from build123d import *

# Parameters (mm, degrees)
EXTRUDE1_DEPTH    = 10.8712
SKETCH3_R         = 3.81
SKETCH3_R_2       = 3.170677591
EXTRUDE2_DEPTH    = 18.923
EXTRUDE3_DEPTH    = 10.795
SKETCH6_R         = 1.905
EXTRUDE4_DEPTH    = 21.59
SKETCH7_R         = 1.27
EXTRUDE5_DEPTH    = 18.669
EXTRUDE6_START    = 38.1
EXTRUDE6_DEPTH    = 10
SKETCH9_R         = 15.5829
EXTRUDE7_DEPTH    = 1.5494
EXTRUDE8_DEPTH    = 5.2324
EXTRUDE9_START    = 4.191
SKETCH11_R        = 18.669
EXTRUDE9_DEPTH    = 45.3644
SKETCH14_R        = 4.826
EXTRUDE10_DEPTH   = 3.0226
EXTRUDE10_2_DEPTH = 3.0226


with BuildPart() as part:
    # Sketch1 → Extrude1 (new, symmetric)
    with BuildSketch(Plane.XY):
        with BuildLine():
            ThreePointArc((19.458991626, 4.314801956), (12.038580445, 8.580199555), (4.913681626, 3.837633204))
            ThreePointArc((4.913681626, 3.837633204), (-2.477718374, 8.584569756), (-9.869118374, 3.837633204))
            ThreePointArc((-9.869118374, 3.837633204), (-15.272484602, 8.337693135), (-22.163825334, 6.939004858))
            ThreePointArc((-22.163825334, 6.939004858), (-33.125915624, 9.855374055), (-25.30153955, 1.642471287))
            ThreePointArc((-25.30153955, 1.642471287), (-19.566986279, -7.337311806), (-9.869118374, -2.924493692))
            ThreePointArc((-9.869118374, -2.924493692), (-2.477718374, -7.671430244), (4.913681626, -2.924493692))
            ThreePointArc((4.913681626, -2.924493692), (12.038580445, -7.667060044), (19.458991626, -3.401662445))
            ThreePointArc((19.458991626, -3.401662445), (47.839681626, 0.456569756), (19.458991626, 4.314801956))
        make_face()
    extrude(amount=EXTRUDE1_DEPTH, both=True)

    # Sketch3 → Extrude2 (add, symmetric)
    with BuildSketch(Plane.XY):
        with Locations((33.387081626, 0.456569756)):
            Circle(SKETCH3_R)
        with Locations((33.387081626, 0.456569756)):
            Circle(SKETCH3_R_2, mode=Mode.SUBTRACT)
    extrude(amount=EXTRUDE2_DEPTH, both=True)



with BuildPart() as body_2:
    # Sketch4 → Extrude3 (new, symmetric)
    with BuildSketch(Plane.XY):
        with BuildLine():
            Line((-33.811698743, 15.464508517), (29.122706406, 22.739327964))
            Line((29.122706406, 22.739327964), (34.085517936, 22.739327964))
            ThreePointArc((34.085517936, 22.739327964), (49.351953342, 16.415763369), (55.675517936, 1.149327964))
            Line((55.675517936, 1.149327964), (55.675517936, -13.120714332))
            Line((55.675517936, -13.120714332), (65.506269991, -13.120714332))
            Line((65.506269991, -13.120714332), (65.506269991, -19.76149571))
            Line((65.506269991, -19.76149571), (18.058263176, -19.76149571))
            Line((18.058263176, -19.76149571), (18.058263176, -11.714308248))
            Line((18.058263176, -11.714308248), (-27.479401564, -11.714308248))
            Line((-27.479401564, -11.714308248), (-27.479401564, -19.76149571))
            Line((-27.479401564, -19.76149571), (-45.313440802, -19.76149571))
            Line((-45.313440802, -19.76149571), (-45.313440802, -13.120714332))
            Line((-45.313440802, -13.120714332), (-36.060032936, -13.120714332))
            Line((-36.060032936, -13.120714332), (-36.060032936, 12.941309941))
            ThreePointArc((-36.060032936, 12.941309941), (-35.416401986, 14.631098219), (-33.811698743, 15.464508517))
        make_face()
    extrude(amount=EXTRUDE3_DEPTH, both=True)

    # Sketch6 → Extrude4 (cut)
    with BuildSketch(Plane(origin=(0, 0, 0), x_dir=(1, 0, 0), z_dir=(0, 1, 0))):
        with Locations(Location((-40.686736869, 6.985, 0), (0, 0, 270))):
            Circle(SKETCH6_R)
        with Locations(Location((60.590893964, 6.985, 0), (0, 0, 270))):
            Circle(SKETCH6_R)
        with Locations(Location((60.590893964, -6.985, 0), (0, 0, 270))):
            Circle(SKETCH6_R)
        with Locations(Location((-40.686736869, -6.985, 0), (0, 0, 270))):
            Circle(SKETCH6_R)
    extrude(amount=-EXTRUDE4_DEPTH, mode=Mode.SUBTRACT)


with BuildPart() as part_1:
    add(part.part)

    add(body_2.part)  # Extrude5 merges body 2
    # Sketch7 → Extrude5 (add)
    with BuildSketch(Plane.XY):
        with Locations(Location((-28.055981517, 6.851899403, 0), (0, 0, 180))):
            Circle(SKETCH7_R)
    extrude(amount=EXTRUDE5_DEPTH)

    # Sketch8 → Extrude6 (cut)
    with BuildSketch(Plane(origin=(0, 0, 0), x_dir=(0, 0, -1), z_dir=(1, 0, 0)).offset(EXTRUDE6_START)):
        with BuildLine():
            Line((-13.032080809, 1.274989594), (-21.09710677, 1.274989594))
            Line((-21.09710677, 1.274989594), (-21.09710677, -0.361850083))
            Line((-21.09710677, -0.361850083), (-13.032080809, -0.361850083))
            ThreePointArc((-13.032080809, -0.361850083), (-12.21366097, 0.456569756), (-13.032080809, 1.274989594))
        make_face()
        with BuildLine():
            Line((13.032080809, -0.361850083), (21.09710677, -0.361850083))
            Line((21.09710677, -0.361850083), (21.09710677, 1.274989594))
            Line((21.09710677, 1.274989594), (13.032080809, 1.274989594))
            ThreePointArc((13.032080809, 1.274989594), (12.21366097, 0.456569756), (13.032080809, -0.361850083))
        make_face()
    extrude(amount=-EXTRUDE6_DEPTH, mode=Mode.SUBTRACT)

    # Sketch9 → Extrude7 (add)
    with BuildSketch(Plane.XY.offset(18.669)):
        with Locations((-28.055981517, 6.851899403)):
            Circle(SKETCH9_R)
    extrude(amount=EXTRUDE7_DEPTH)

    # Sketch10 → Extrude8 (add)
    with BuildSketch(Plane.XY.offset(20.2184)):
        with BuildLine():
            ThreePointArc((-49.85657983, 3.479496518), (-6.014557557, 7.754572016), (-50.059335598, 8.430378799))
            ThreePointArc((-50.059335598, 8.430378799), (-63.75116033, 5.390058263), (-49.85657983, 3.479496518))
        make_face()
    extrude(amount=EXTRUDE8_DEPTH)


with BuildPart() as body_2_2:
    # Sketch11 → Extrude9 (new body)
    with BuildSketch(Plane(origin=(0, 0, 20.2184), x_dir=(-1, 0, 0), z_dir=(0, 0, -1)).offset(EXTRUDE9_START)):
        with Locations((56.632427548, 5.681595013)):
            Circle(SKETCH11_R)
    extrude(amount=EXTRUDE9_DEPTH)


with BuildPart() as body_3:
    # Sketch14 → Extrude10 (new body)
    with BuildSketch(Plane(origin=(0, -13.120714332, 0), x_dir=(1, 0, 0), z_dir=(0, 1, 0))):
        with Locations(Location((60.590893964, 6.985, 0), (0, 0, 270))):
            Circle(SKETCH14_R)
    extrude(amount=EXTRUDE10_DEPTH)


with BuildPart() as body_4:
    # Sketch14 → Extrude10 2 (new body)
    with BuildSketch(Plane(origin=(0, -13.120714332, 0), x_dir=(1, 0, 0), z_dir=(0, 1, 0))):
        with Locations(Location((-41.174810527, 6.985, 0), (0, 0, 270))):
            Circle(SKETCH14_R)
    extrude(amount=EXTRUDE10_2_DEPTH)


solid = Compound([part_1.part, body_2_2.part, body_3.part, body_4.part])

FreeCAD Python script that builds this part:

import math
import FreeCAD as App
import Part
import Sketcher

V = App.Vector
Q = App.Units.Quantity

doc = App.newDocument("Part")
params = doc.addObject("Spreadsheet::Sheet", "Params")
for row, (alias, value) in enumerate([
    ("sketch1_radius", "0.32 in"),
    ("sketch1_radius2", "0.232 in"),
    ("sketch1_radius3", "0.569 in"),
    ("pad1_length", "0.856 in"),
    ("sketch2_diameter", "0.3 in"),
    ("pad2_length", "1.49 in"),
    ("sketch3_radius", "0.1 in"),
    ("sketch3_radius2", "0.85 in"),
    ("pad3_length", "0.85 in"),
    ("sketch4_diameter", "0.15 in"),
    ("pocket1_length", "0.85 in"),
    ("sketch5_diameter", "0.1 in"),
    ("pad4_length", "0.735 in"),
    ("pocket2_length", "10 mm"),
    ("sketch7_diameter", "1.227 in"),
    ("pad5_length", "0.061 in"),
    ("pad6_length", "0.206 in"),
    ("sketch9_diameter", "1.47 in"),
    ("pad7_length", "1.786 in"),
    ("sketch10_diameter", "0.38 in"),
    ("pad8_length", "0.119 in"),
    ("sketch11_diameter", "0.38 in"),
    ("pad9_length", "0.119 in"),
], start=1):
    params.set(f"A{row}", alias)
    params.set(f"B{row}", "=" + value)
    params.setAlias(f"B{row}", alias)

body = doc.addObject("PartDesign::Body", "Body")

# Sketch on XY plane
sketch1 = doc.addObject("Sketcher::SketchObject", "Sketch")
body.addObject(sketch1)
sketch1.AttachmentSupport = (doc.XY_Plane, [""])
sketch1.MapMode = "FlatFace"
sketch1.addGeometry([
    Part.ArcOfCircle(Part.Circle(V(12, 0, 0), V(0, 0, 1), 8), math.radians(28), math.radians(155)),  # 0
    Part.ArcOfCircle(Part.Circle(V(-2, 0, 0), V(0, 0, 1), 8), math.radians(25), math.radians(155)),  # 1
    Part.ArcOfCircle(Part.Circle(V(-17, 0, 0), V(0, 0, 1), 8), math.radians(25), math.radians(127)),  # 2
    Part.ArcOfCircle(Part.Circle(V(-28, 7, 0), V(0, 0, 1), 6), math.radians(1), math.radians(298)),  # 3
    Part.ArcOfCircle(Part.Circle(V(-17, 0, 0), V(0, 0, 1), 8), math.radians(172), math.radians(335)),  # 4
    Part.ArcOfCircle(Part.Circle(V(-2, 0, 0), V(0, 0, 1), 8), math.radians(-155), math.radians(-25)),  # 5
    Part.ArcOfCircle(Part.Circle(V(12, 0, 0), V(0, 0, 1), 8), math.radians(-155), math.radians(-28)),  # 6
    Part.ArcOfCircle(Part.Circle(V(33, 0, 0), V(0, 0, 1), 14), math.radians(-165), math.radians(165)),  # 7
], False)
sketch1.addConstraint([
    Sketcher.Constraint("Coincident", 0, 2, 1, 1),
    Sketcher.Constraint("Coincident", 1, 2, 2, 1),
    Sketcher.Constraint("Coincident", 2, 2, 3, 1),
    Sketcher.Constraint("Coincident", 3, 2, 4, 1),
    Sketcher.Constraint("Coincident", 4, 2, 5, 1),
    Sketcher.Constraint("Coincident", 5, 2, 6, 1),
    Sketcher.Constraint("Coincident", 6, 2, 7, 1),
    Sketcher.Constraint("Coincident", 7, 2, 0, 1),
    Sketcher.Constraint("Coincident", 4, 3, 2, 3),
    Sketcher.Constraint("Coincident", 5, 3, 1, 3),
    Sketcher.Constraint("Coincident", 6, 3, 0, 3),
    Sketcher.Constraint("Equal", 0, 1),
    Sketcher.Constraint("Equal", 1, 2),
    Sketcher.Constraint("Equal", 2, 4),
    Sketcher.Constraint("Equal", 4, 5),
    Sketcher.Constraint("Equal", 5, 6),
    Sketcher.Constraint("Horizontal", 0, 3, 1, 3),
    Sketcher.Constraint("Horizontal", 1, 3, 2, 3),
    Sketcher.Constraint("Horizontal", 6, 3, 7, 3),
    Sketcher.Constraint("Horizontal", 0, 2, 1, 2),
    Sketcher.Constraint("Radius", 0, Q("0.32 in")),
    Sketcher.Constraint("Radius", 3, Q("0.232 in")),
    Sketcher.Constraint("Radius", 7, Q("0.569 in")),
    Sketcher.Constraint("DistanceX", 0, 3, 7, 3, Q("0.83 in")),
    Sketcher.Constraint("DistanceX", 1, 3, 0, 3, Q("0.582 in")),
    Sketcher.Constraint("DistanceY", -1, 1, 3, 3, Q("6.851899 mm")),
    Sketcher.Constraint("DistanceY", -1, 1, 7, 2, Q("4.314802 mm")),
    Sketcher.Constraint("DistanceY", 4, 3, 3, 2, Q("1.185902 mm")),
    Sketcher.Constraint("DistanceX", -1, 1, 0, 3, Q("12.305082 mm")),
])
sketch1.setExpression("Constraints[20]", "Params.sketch1_radius")
sketch1.setExpression("Constraints[21]", "Params.sketch1_radius2")
sketch1.setExpression("Constraints[22]", "Params.sketch1_radius3")
pad1 = doc.addObject("PartDesign::Pad", "Pad")
body.addObject(pad1)
pad1.Profile = sketch1
pad1.setExpression("Length", "Params.pad1_length")
pad1.Midplane = True

# Sketch on XY plane
sketch2 = doc.addObject("Sketcher::SketchObject", "Sketch001")
body.addObject(sketch2)
sketch2.AttachmentSupport = (doc.XY_Plane, [""])
sketch2.MapMode = "FlatFace"
sketch2.addGeometry([
    Part.Circle(V(33.4, 0.5, 0), V(0, 0, 1), 3.8),
    Part.Circle(V(33.4, 0.5, 0), V(0, 0, 1), 3.2),
], False)
sketch2.addConstraint([
    Sketcher.Constraint("Coincident", 1, 3, 0, 3),
    Sketcher.Constraint("Diameter", 0, Q("0.3 in")),
    Sketcher.Constraint("Diameter", 1, Q("6.341355 mm")),
    Sketcher.Constraint("DistanceX", -1, 1, 0, 3, Q("33.387082 mm")),
    Sketcher.Constraint("DistanceY", -1, 1, 0, 3, Q("0.45657 mm")),
])
sketch2.setExpression("Constraints[1]", "Params.sketch2_diameter")
pad2 = doc.addObject("PartDesign::Pad", "Pad001")
body.addObject(pad2)
pad2.Profile = sketch2
pad2.setExpression("Length", "Params.pad2_length")
pad2.Midplane = True
body2 = doc.addObject("PartDesign::Body", "Body001")

# Sketch on XY plane
sketch3 = doc.addObject("Sketcher::SketchObject", "Sketch002")
body2.addObject(sketch3)
sketch3.AttachmentSupport = (doc.getObject("XY_Plane001"), [""])
sketch3.MapMode = "FlatFace"
sketch3.addGeometry([
    Part.LineSegment(V(29.122706, 22.739328, 0), V(-33.811699, 15.464509, 0)),  # 0
    Part.ArcOfCircle(Part.Circle(V(-33.520033, 12.94131, 0), V(0, 0, 1), 2.54), math.radians(96.593765), math.radians(180)),  # 1
    Part.LineSegment(V(-36.060033, 12.94131, 0), V(-36.060033, -13.120714, 0)),  # 2
    Part.LineSegment(V(-36.060033, -13.120714, 0), V(-45.313441, -13.120714, 0)),  # 3
    Part.LineSegment(V(-45.313441, -13.120714, 0), V(-45.313441, -19.761496, 0)),  # 4
    Part.LineSegment(V(-45.313441, -19.761496, 0), V(-27.479402, -19.761496, 0)),  # 5
    Part.LineSegment(V(-27.479402, -19.761496, 0), V(-27.479402, -11.714308, 0)),  # 6
    Part.LineSegment(V(-27.479402, -11.714308, 0), V(18.058263, -11.714308, 0)),  # 7
    Part.LineSegment(V(18.058263, -11.714308, 0), V(18.058263, -19.761496, 0)),  # 8
    Part.LineSegment(V(18.058263, -19.761496, 0), V(65.50627, -19.761496, 0)),  # 9
    Part.LineSegment(V(65.50627, -19.761496, 0), V(65.50627, -13.120714, 0)),  # 10
    Part.LineSegment(V(65.50627, -13.120714, 0), V(55.675518, -13.120714, 0)),  # 11
    Part.LineSegment(V(55.675518, -13.120714, 0), V(55.675518, 1.149328, 0)),  # 12
    Part.ArcOfCircle(Part.Circle(V(34.085518, 1.149328, 0), V(0, 0, 1), 21.59), math.radians(0), math.radians(90)),  # 13
    Part.LineSegment(V(34.085518, 22.739328, 0), V(29.122706, 22.739328, 0)),  # 14
], False)
sketch3.addConstraint([
    Sketcher.Constraint("Coincident", 0, 2, 1, 1),
    Sketcher.Constraint("Coincident", 1, 2, 2, 1),
    Sketcher.Constraint("Coincident", 2, 2, 3, 1),
    Sketcher.Constraint("Coincident", 3, 2, 4, 1),
    Sketcher.Constraint("Coincident", 4, 2, 5, 1),
    Sketcher.Constraint("Coincident", 5, 2, 6, 1),
    Sketcher.Constraint("Coincident", 6, 2, 7, 1),
    Sketcher.Constraint("Coincident", 7, 2, 8, 1),
    Sketcher.Constraint("Coincident", 8, 2, 9, 1),
    Sketcher.Constraint("Coincident", 9, 2, 10, 1),
    Sketcher.Constraint("Coincident", 10, 2, 11, 1),
    Sketcher.Constraint("Coincident", 11, 2, 12, 1),
    Sketcher.Constraint("Coincident", 12, 2, 13, 1),
    Sketcher.Constraint("Coincident", 13, 2, 14, 1),
    Sketcher.Constraint("Coincident", 14, 2, 0, 1),
    Sketcher.Constraint("Vertical", 2),
    Sketcher.Constraint("Horizontal", 3),
    Sketcher.Constraint("Vertical", 4),
    Sketcher.Constraint("Horizontal", 5),
    Sketcher.Constraint("Vertical", 6),
    Sketcher.Constraint("Horizontal", 7),
    Sketcher.Constraint("Vertical", 8),
    Sketcher.Constraint("Horizontal", 9),
    Sketcher.Constraint("Vertical", 10),
    Sketcher.Constraint("Horizontal", 11),
    Sketcher.Constraint("Vertical", 12),
    Sketcher.Constraint("Horizontal", 14),
    Sketcher.Constraint("Radius", 1, Q("0.1 in")),
    Sketcher.Constraint("Radius", 13, Q("0.85 in")),
    Sketcher.Constraint("DistanceX", 13, 2, 12, 2, Q("0.85 in")),
    Sketcher.Constraint("DistanceY", 12, 2, 13, 2, Q("0.85 in")),
    Sketcher.Constraint("DistanceX", 5, 1, 5, 2, Q("17.834039 mm")),
    Sketcher.Constraint("DistanceX", 14, 2, 14, 1, Q("4.962812 mm")),
    Sketcher.Constraint("DistanceY", 4, 2, 4, 1, Q("6.640781 mm")),
    Sketcher.Constraint("DistanceY", 10, 1, 10, 2, Q("6.640781 mm")),
    Sketcher.Constraint("DistanceX", 0, 2, -1, 1, Q("33.811699 mm")),
    Sketcher.Constraint("DistanceX", 5, 2, -1, 1, Q("27.479402 mm")),
    Sketcher.Constraint("DistanceY", 1, 3, 0, 2, Q("2.523199 mm")),
    Sketcher.Constraint("DistanceY", 1, 2, 0, 2, Q("2.523199 mm")),
    Sketcher.Constraint("Distance", 0, Q("63.353471 mm")),
    Sketcher.Constraint("DistanceX", 7, 1, 7, 2, Q("45.537665 mm")),
    Sketcher.Constraint("DistanceX", 9, 1, 9, 2, Q("47.448007 mm")),
    Sketcher.Constraint("DistanceX", 11, 2, 11, 1, Q("9.830752 mm")),
    Sketcher.Constraint("DistanceY", 2, 2, 2, 1, Q("26.062024 mm")),
    Sketcher.Constraint("DistanceY", 6, 1, 6, 2, Q("8.047187 mm")),
    Sketcher.Constraint("DistanceY", 8, 2, 8, 1, Q("8.047187 mm")),
    Sketcher.Constraint("DistanceY", -1, 1, 1, 3, Q("12.94131 mm")),
])
sketch3.setExpression("Constraints[27]", "Params.sketch3_radius")
sketch3.setExpression("Constraints[28]", "Params.sketch3_radius2")
pad3 = doc.addObject("PartDesign::Pad", "Pad002")
body2.addObject(pad3)
pad3.Profile = sketch3
pad3.setExpression("Length", "Params.pad3_length")
pad3.Midplane = True

# Sketch on XZ plane
sketch4 = doc.addObject("Sketcher::SketchObject", "Sketch003")
body2.addObject(sketch4)
sketch4.AttachmentSupport = (doc.getObject("XZ_Plane001"), [""])
sketch4.MapMode = "FlatFace"
sketch4.addGeometry([
    Part.Circle(V(-40.7, -7, 0), V(0, 0, 1), 1.9),
    Part.Circle(V(60.6, -7, 0), V(0, 0, 1), 1.9),
    Part.Circle(V(60.6, 7, 0), V(0, 0, 1), 1.9),
    Part.Circle(V(-40.7, 7, 0), V(0, 0, 1), 1.9),
], False)
sketch4.addConstraint([
    Sketcher.Constraint("Equal", 0, 1),
    Sketcher.Constraint("Equal", 1, 2),
    Sketcher.Constraint("Equal", 2, 3),
    Sketcher.Constraint("Symmetric", 1, 3, 2, 3, -1),
    Sketcher.Constraint("Symmetric", 0, 3, 3, 3, -1),
    Sketcher.Constraint("Horizontal", 0, 3, 1, 3),
    Sketcher.Constraint("Diameter", 0, Q("0.15 in")),
    Sketcher.Constraint("DistanceY", 1, 3, 2, 3, Q("0.55 in")),
    Sketcher.Constraint("DistanceX", 0, 3, 1, 3, Q("101.277631 mm")),
    Sketcher.Constraint("DistanceX", 0, 3, -1, 1, Q("40.686737 mm")),
])
sketch4.setExpression("Constraints[6]", "Params.sketch4_diameter")
pocket1 = doc.addObject("PartDesign::Pocket", "Pocket")
body2.addObject(pocket1)
pocket1.Profile = sketch4
pocket1.setExpression("Length", "Params.pocket1_length")
pocket1.Reversed = True
doc.recompute()

boolean = doc.addObject("PartDesign::Boolean", "Boolean")
body.addObject(boolean)
boolean.Type = "Fuse"
boolean.addObjects([body2])

# Sketch on XY plane
sketch5 = doc.addObject("Sketcher::SketchObject", "Sketch004")
body.addObject(sketch5)
sketch5.AttachmentSupport = (doc.XY_Plane, [""])
sketch5.MapMode = "FlatFace"
sketch5.addGeometry(Part.Circle(V(-28.1, 6.9, 0), V(0, 0, 1), 1.3), False)
sketch5.addConstraint([
    Sketcher.Constraint("Diameter", 0, Q("0.1 in")),
    Sketcher.Constraint("DistanceY", -1, 1, 0, 3, Q("6.851899 mm")),
    Sketcher.Constraint("DistanceX", 0, 3, -1, 1, Q("28.055982 mm")),
])
sketch5.setExpression("Constraints[0]", "Params.sketch5_diameter")
pad4 = doc.addObject("PartDesign::Pad", "Pad003")
body.addObject(pad4)
pad4.Profile = sketch5
pad4.setExpression("Length", "Params.pad4_length")

# Sketch on YZ plane
sketch6 = doc.addObject("Sketcher::SketchObject", "Sketch005")
body.addObject(sketch6)
sketch6.AttachmentSupport = (doc.YZ_Plane, [""])
sketch6.MapMode = "FlatFace"
sketch6.AttachmentOffset = App.Placement(V(0, 0, 1.5 * 25.4), App.Rotation())
sketch6.addGeometry([
    Part.LineSegment(V(1.3, 13, 0), V(1.3, 21.1, 0)),  # 0
    Part.LineSegment(V(1.3, 21.1, 0), V(-0.4, 21.1, 0)),  # 1
    Part.LineSegment(V(-0.4, 21.1, 0), V(-0.4, 13, 0)),  # 2
    Part.ArcOfCircle(Part.Circle(V(0.5, 13, 0), V(0, 0, 1), 0.8), math.radians(180), math.radians(360)),  # 3
    Part.LineSegment(V(-0.4, -13, 0), V(-0.4, -21.1, 0)),  # 4
    Part.LineSegment(V(-0.4, -21.1, 0), V(1.3, -21.1, 0)),  # 5
    Part.LineSegment(V(1.3, -21.1, 0), V(1.3, -13, 0)),  # 6
    Part.ArcOfCircle(Part.Circle(V(0.5, -13, 0), V(0, 0, 1), 0.8), math.radians(0), math.radians(180)),  # 7
], False)
sketch6.addConstraint([
    Sketcher.Constraint("Coincident", 0, 2, 1, 1),
    Sketcher.Constraint("Coincident", 1, 2, 2, 1),
    Sketcher.Constraint("Tangent", 2, 2, 3, 1),
    Sketcher.Constraint("Tangent", 3, 2, 0, 1),
    Sketcher.Constraint("Coincident", 4, 2, 5, 1),
    Sketcher.Constraint("Coincident", 5, 2, 6, 1),
    Sketcher.Constraint("Tangent", 6, 2, 7, 1),
    Sketcher.Constraint("Tangent", 7, 2, 4, 1),
    Sketcher.Constraint("Vertical", 0),
    Sketcher.Constraint("Horizontal", 1),
    Sketcher.Constraint("Vertical", 2),
    Sketcher.Constraint("Vertical", 4),
    Sketcher.Constraint("Horizontal", 5),
    Sketcher.Constraint("Vertical", 6),
    Sketcher.Constraint("Equal", 3, 7),
    Sketcher.Constraint("Symmetric", 3, 3, 7, 3, -1),
    Sketcher.Constraint("Equal", 2, 4),
    Sketcher.Constraint("Radius", 3, Q("0.81842 mm")),
    Sketcher.Constraint("DistanceY", 0, 1, 0, 2, Q("8.065026 mm")),
    Sketcher.Constraint("DistanceX", -1, 1, 3, 3, Q("0.45657 mm")),
    Sketcher.Constraint("DistanceY", -1, 1, 3, 3, Q("13.032081 mm")),
])
pocket2 = doc.addObject("PartDesign::Pocket", "Pocket001")
body.addObject(pocket2)
pocket2.Profile = sketch6
pocket2.setExpression("Length", "Params.pocket2_length")

# Sketch on XY plane
sketch7 = doc.addObject("Sketcher::SketchObject", "Sketch006")
body.addObject(sketch7)
sketch7.AttachmentSupport = (doc.XY_Plane, [""])
sketch7.MapMode = "FlatFace"
sketch7.AttachmentOffset = App.Placement(V(0, 0, 0.735 * 25.4), App.Rotation())
sketch7.addGeometry(Part.Circle(V(-28, 7, 0), V(0, 0, 1), 16), False)
sketch7.addConstraint([
    Sketcher.Constraint("Diameter", 0, Q("1.227 in")),
    Sketcher.Constraint("DistanceY", -1, 1, 0, 3, Q("6.851899 mm")),
    Sketcher.Constraint("DistanceX", 0, 3, -1, 1, Q("28.055982 mm")),
])
sketch7.setExpression("Constraints[0]", "Params.sketch7_diameter")
pad5 = doc.addObject("PartDesign::Pad", "Pad004")
body.addObject(pad5)
pad5.Profile = sketch7
pad5.setExpression("Length", "Params.pad5_length")

# Sketch on XY plane
sketch8 = doc.addObject("Sketcher::SketchObject", "Sketch007")
body.addObject(sketch8)
sketch8.AttachmentSupport = (doc.XY_Plane, [""])
sketch8.MapMode = "FlatFace"
sketch8.AttachmentOffset = App.Placement(V(0, 0, 0.796 * 25.4), App.Rotation())
sketch8.addGeometry([
    Part.ArcOfCircle(Part.Circle(V(-28.1, 6.9, 0), V(0, 0, 1), 22.1), math.radians(-171), math.radians(176)),
    Part.ArcOfCircle(Part.Circle(V(-56.6, 5.7, 0), V(0, 0, 1), 7.1), math.radians(23), math.radians(342)),
], False)
sketch8.addConstraint([
    Sketcher.Constraint("Coincident", 0, 1, 1, 2),
    Sketcher.Constraint("Coincident", 1, 1, 0, 2),
    Sketcher.Constraint("Radius", 0, Q("0.8685 in")),
    Sketcher.Constraint("Radius", 1, Q("0.2805 in")),
    Sketcher.Constraint("DistanceY", -1, 1, 0, 3, Q("6.851899 mm")),
    Sketcher.Constraint("DistanceY", 0, 1, 1, 3, Q("2.202098 mm")),
    Sketcher.Constraint("DistanceX", 0, 1, 0, 3, Q("21.800598 mm")),
    Sketcher.Constraint("DistanceX", 0, 3, -1, 1, Q("28.055982 mm")),
])
pad6 = doc.addObject("PartDesign::Pad", "Pad005")
body.addObject(pad6)
pad6.Profile = sketch8
pad6.setExpression("Length", "Params.pad6_length")
body3 = doc.addObject("PartDesign::Body", "Body002")

# Sketch on XY plane
sketch9 = doc.addObject("Sketcher::SketchObject", "Sketch008")
body3.addObject(sketch9)
sketch9.AttachmentSupport = (doc.getObject("XY_Plane002"), [""])
sketch9.MapMode = "FlatFace"
sketch9.AttachmentOffset = App.Placement(V(0, 0, 0.631 * 25.4), App.Rotation())
sketch9.addGeometry(Part.Circle(V(-57, 6, 0), V(0, 0, 1), 19), False)
sketch9.addConstraint([
    Sketcher.Constraint("Diameter", 0, Q("1.47 in")),
    Sketcher.Constraint("DistanceX", 0, 3, -1, 1, Q("56.632428 mm")),
    Sketcher.Constraint("DistanceY", -1, 1, 0, 3, Q("5.681595 mm")),
])
sketch9.setExpression("Constraints[0]", "Params.sketch9_diameter")
pad7 = doc.addObject("PartDesign::Pad", "Pad006")
body3.addObject(pad7)
pad7.Profile = sketch9
pad7.setExpression("Length", "Params.pad7_length")
pad7.Reversed = True
body4 = doc.addObject("PartDesign::Body", "Body003")

# Sketch on XZ plane
sketch10 = doc.addObject("Sketcher::SketchObject", "Sketch009")
body4.addObject(sketch10)
sketch10.AttachmentSupport = (doc.getObject("XZ_Plane003"), [""])
sketch10.MapMode = "FlatFace"
sketch10.AttachmentOffset = App.Placement(V(0, 0, 13.120714), App.Rotation())
sketch10.addGeometry(Part.Circle(V(60.6, -7, 0), V(0, 0, 1), 4.8), False)
sketch10.addConstraint([
    Sketcher.Constraint("Diameter", 0, Q("0.38 in")),
    Sketcher.Constraint("DistanceY", 0, 3, -1, 1, Q("0.275 in")),
    Sketcher.Constraint("DistanceX", -1, 1, 0, 3, Q("60.590894 mm")),
])
sketch10.setExpression("Constraints[0]", "Params.sketch10_diameter")
pad8 = doc.addObject("PartDesign::Pad", "Pad007")
body4.addObject(pad8)
pad8.Profile = sketch10
pad8.setExpression("Length", "Params.pad8_length")
pad8.Reversed = True
body5 = doc.addObject("PartDesign::Body", "Body004")

# Sketch on XZ plane
sketch11 = doc.addObject("Sketcher::SketchObject", "Sketch010")
body5.addObject(sketch11)
sketch11.AttachmentSupport = (doc.getObject("XZ_Plane004"), [""])
sketch11.MapMode = "FlatFace"
sketch11.AttachmentOffset = App.Placement(V(0, 0, 13.120714), App.Rotation())
sketch11.addGeometry(Part.Circle(V(-41.2, -7, 0), V(0, 0, 1), 4.8), False)
sketch11.addConstraint([
    Sketcher.Constraint("Diameter", 0, Q("0.38 in")),
    Sketcher.Constraint("DistanceY", 0, 3, -1, 1, Q("0.275 in")),
    Sketcher.Constraint("DistanceX", 0, 3, -1, 1, Q("41.174811 mm")),
])
sketch11.setExpression("Constraints[0]", "Params.sketch11_diameter")
pad9 = doc.addObject("PartDesign::Pad", "Pad008")
body5.addObject(pad9)
pad9.Profile = sketch11
pad9.setExpression("Length", "Params.pad9_length")
pad9.Reversed = True

doc.recompute()
